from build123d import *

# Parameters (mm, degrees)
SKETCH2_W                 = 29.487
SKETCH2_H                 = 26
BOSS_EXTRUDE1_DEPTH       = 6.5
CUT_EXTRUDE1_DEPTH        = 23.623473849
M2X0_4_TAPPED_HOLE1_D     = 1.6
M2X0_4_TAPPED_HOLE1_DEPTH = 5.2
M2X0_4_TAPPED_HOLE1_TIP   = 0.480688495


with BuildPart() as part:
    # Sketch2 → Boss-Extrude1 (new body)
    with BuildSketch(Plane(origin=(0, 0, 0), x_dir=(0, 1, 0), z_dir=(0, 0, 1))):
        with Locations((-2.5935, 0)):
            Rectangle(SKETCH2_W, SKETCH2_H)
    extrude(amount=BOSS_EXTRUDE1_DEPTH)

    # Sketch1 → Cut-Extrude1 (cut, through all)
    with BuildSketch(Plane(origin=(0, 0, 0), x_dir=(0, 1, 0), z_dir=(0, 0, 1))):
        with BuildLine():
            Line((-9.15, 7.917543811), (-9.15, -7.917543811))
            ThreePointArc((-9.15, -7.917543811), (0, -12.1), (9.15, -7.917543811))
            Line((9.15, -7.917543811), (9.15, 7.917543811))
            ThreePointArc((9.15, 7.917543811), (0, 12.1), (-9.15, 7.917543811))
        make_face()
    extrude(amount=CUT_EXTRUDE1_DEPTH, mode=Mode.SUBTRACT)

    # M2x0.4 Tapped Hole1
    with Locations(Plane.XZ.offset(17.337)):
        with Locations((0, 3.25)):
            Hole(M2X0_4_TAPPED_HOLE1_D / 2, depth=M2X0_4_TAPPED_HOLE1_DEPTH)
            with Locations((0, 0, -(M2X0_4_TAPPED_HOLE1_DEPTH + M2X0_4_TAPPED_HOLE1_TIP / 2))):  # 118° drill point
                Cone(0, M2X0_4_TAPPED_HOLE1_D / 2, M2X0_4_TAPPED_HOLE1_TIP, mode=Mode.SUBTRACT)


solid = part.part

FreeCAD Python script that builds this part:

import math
import FreeCAD as App
import Part
import Sketcher

doc = App.newDocument("Part")
params = doc.addObject("Spreadsheet::Sheet", "Params")
for row, (alias, value) in enumerate([
    ("sketch1_width", "26 mm"),
    ("pad1_length", "6.5 mm"),
    ("sketch2_radius", "12.1 mm"),
    ("sketch3_diameter", "1.6 mm"),
    ("hole_diameter", "1.6 mm"),
    ("hole_depth", "5.2 mm"),
], start=1):
    params.set(f"A{row}", alias)
    params.set(f"B{row}", "=" + value)
    params.setAlias(f"B{row}", alias)

body = doc.addObject("PartDesign::Body", "Body")

# Sketch on XY plane
sketch1 = body.newObject("Sketcher::SketchObject", "Sketch")
sketch1.AttachmentSupport = (doc.getObject("XY_Plane"), [""])
sketch1.MapMode = "FlatFace"
sketch1.addGeometry(Part.LineSegment(App.Vector(-13, -17.337, 0), App.Vector(13, -17.337, 0)), False)
sketch1.addGeometry(Part.LineSegment(App.Vector(13, -17.337, 0), App.Vector(13, 12.15, 0)), False)
sketch1.addGeometry(Part.LineSegment(App.Vector(13, 12.15, 0), App.Vector(-13, 12.15, 0)), False)
sketch1.addGeometry(Part.LineSegment(App.Vector(-13, 12.15, 0), App.Vector(-13, -17.337, 0)), False)
sketch1.addConstraint(Sketcher.Constraint("Coincident", 0, 2, 1, 1))
sketch1.addConstraint(Sketcher.Constraint("Coincident", 1, 2, 2, 1))
sketch1.addConstraint(Sketcher.Constraint("Coincident", 2, 2, 3, 1))
sketch1.addConstraint(Sketcher.Constraint("Coincident", 3, 2, 0, 1))
sketch1.addConstraint(Sketcher.Constraint("Horizontal", 0))
sketch1.addConstraint(Sketcher.Constraint("Vertical", 1))
sketch1.addConstraint(Sketcher.Constraint("Horizontal", 2))
sketch1.addConstraint(Sketcher.Constraint("Vertical", 3))
sketch1.addConstraint(Sketcher.Constraint("DistanceX", 0, 1, 0, 2, 26.0))
sketch1.addConstraint(Sketcher.Constraint("DistanceX", -1, 1, 0, 2, 13.0))
sketch1.addConstraint(Sketcher.Constraint("DistanceY", 1, 1, 1, 2, 29.487))
sketch1.addConstraint(Sketcher.Constraint("DistanceY", -1, 1, 1, 2, 12.15))
sketch1.setExpression("Constraints[8]", "Params.sketch1_width")
pad1 = body.newObject("PartDesign::Pad", "Pad")
pad1.Profile = sketch1
pad1.setExpression("Length", "Params.pad1_length")

# Sketch on XY plane
sketch2 = body.newObject("Sketcher::SketchObject", "Sketch001")
sketch2.AttachmentSupport = (doc.getObject("XY_Plane"), [""])
sketch2.MapMode = "FlatFace"
sketch2.addGeometry(Part.LineSegment(App.Vector(-7.917544, -9.15, 0), App.Vector(7.917544, -9.15, 0)), False)
sketch2.addGeometry(Part.ArcOfCircle(Part.Circle(App.Vector(0, 0, 0), App.Vector(0, 0, 1), 12.1), math.radians(-49.130189), math.radians(49.130189)), False)
sketch2.addGeometry(Part.LineSegment(App.Vector(7.917544, 9.15, 0), App.Vector(-7.917544, 9.15, 0)), False)
sketch2.addGeometry(Part.ArcOfCircle(Part.Circle(App.Vector(0, 0, 0), App.Vector(0, 0, 1), 12.1), math.radians(130.869811), math.radians(229.130189)), False)
sketch2.addConstraint(Sketcher.Constraint("Coincident", 0, 2, 1, 1))
sketch2.addConstraint(Sketcher.Constraint("Coincident", 1, 2, 2, 1))
sketch2.addConstraint(Sketcher.Constraint("Coincident", 2, 2, 3, 1))
sketch2.addConstraint(Sketcher.Constraint("Coincident", 3, 2, 0, 1))
sketch2.addConstraint(Sketcher.Constraint("Horizontal", 0))
sketch2.addConstraint(Sketcher.Constraint("Horizontal", 2))
sketch2.addConstraint(Sketcher.Constraint("Coincident", 1, 3, -1, 1))
sketch2.addConstraint(Sketcher.Constraint("Coincident", 3, 3, -1, 1))
sketch2.addConstraint(Sketcher.Constraint("Equal", 1, 3))
sketch2.addConstraint(Sketcher.Constraint("Vertical", 0, 2, 1, 2))
sketch2.addConstraint(Sketcher.Constraint("Radius", 1, 12.1))
sketch2.addConstraint(Sketcher.Constraint("DistanceY", 0, 2, 1, 2, 18.3))
sketch2.setExpression("Constraints[10]", "Params.sketch2_radius")
pocket1 = body.newObject("PartDesign::Pocket", "Pocket")
pocket1.Profile = sketch2
pocket1.Type = "ThroughAll"
pocket1.Reversed = True

# Sketch on XZ plane
sketch3 = body.newObject("Sketcher::SketchObject", "Sketch002")
sketch3.AttachmentSupport = (doc.getObject("XZ_Plane"), [""])
sketch3.MapMode = "FlatFace"
sketch3.AttachmentOffset = App.Placement(App.Vector(0, 0, 17.337), App.Rotation())
sketch3.addGeometry(Part.Circle(App.Vector(0, 3.25, 0), App.Vector(0, 0, 1), 0.8), False)
sketch3.addConstraint(Sketcher.Constraint("PointOnObject", 0, 3, -2))
sketch3.addConstraint(Sketcher.Constraint("Diameter", 0, 1.6))
sketch3.addConstraint(Sketcher.Constraint("DistanceY", -1, 1, 0, 3, 3.25))
sketch3.setExpression("Constraints[1]", "Params.sketch3_diameter")
doc.recompute()
hole = body.newObject("PartDesign::Hole", "Hole")
hole.Profile = sketch3
hole.ThreadType = "None"
hole.setExpression("Diameter", "Params.hole_diameter")
hole.DepthType = "Dimension"
hole.setExpression("Depth", "Params.hole_depth")
hole.DrillPoint = "Angled"
hole.DrillPointAngle = 118

doc.recompute()
